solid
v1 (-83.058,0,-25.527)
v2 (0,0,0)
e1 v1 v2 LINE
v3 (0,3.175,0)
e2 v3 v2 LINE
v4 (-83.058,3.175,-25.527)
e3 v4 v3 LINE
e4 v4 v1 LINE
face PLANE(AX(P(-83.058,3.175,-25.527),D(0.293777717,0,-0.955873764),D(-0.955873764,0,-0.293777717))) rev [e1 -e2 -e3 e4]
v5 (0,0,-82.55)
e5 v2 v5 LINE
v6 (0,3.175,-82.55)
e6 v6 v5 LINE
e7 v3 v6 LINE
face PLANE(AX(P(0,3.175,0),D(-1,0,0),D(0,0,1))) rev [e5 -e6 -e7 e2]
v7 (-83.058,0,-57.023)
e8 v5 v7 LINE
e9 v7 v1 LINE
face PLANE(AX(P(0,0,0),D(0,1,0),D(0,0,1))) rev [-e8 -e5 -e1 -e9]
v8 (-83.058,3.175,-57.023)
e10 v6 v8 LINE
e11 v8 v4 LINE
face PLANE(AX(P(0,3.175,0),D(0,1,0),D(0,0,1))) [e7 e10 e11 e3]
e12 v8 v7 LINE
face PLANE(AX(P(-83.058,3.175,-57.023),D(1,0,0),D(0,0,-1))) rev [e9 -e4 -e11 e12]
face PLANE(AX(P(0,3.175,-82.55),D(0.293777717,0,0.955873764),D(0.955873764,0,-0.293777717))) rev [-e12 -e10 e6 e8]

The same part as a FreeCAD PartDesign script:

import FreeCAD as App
import Part
import Sketcher
from FreeCAD import Vector
Q = App.Units.Quantity

doc = App.newDocument("Part")
body = doc.addObject("PartDesign::Body", "Body")

sketch1 = body.newObject("Sketcher::SketchObject", "Sketch")
sketch1.AttachmentSupport = (doc.getObject("XZ_Plane"), [""])
sketch1.MapMode = "FlatFace"
sketch1.addGeometry([
    Part.LineSegment(Vector(0, 0, 0), Vector(0, -83, 0)),
    Part.LineSegment(Vector(0, -83, 0), Vector(-83, -57, 0)),
    Part.LineSegment(Vector(-83, -57, 0), Vector(-83, -26, 0)),
    Part.LineSegment(Vector(-83, -26, 0), Vector(0, 0, 0)),
], False)
sketch1.addConstraint([
    Sketcher.Constraint("Coincident", 0, 2, 1, 1),
    Sketcher.Constraint("Coincident", 1, 2, 2, 1),
    Sketcher.Constraint("Coincident", 2, 2, 3, 1),
    Sketcher.Constraint("Coincident", 3, 2, 0, 1),
    Sketcher.Constraint("Vertical", 0),
    Sketcher.Constraint("Vertical", 2),
    Sketcher.Constraint("Coincident", 3, 2, -1, 1),
    Sketcher.Constraint("Equal", 1, 3),
    Sketcher.Constraint("DistanceY", 0, 2, 0, 1, Q("3.25 in")),
    Sketcher.Constraint("DistanceY", 2, 1, 2, 2, Q("1.24 in")),
    Sketcher.Constraint("DistanceX", 1, 2, -1, 1, Q("3.27 in")),
])
pad1 = body.newObject("PartDesign::Pad", "Pad")
pad1.Profile = sketch1
pad1.Length = Q("0.125 in")
pad1.Reversed = True

doc.recompute()
